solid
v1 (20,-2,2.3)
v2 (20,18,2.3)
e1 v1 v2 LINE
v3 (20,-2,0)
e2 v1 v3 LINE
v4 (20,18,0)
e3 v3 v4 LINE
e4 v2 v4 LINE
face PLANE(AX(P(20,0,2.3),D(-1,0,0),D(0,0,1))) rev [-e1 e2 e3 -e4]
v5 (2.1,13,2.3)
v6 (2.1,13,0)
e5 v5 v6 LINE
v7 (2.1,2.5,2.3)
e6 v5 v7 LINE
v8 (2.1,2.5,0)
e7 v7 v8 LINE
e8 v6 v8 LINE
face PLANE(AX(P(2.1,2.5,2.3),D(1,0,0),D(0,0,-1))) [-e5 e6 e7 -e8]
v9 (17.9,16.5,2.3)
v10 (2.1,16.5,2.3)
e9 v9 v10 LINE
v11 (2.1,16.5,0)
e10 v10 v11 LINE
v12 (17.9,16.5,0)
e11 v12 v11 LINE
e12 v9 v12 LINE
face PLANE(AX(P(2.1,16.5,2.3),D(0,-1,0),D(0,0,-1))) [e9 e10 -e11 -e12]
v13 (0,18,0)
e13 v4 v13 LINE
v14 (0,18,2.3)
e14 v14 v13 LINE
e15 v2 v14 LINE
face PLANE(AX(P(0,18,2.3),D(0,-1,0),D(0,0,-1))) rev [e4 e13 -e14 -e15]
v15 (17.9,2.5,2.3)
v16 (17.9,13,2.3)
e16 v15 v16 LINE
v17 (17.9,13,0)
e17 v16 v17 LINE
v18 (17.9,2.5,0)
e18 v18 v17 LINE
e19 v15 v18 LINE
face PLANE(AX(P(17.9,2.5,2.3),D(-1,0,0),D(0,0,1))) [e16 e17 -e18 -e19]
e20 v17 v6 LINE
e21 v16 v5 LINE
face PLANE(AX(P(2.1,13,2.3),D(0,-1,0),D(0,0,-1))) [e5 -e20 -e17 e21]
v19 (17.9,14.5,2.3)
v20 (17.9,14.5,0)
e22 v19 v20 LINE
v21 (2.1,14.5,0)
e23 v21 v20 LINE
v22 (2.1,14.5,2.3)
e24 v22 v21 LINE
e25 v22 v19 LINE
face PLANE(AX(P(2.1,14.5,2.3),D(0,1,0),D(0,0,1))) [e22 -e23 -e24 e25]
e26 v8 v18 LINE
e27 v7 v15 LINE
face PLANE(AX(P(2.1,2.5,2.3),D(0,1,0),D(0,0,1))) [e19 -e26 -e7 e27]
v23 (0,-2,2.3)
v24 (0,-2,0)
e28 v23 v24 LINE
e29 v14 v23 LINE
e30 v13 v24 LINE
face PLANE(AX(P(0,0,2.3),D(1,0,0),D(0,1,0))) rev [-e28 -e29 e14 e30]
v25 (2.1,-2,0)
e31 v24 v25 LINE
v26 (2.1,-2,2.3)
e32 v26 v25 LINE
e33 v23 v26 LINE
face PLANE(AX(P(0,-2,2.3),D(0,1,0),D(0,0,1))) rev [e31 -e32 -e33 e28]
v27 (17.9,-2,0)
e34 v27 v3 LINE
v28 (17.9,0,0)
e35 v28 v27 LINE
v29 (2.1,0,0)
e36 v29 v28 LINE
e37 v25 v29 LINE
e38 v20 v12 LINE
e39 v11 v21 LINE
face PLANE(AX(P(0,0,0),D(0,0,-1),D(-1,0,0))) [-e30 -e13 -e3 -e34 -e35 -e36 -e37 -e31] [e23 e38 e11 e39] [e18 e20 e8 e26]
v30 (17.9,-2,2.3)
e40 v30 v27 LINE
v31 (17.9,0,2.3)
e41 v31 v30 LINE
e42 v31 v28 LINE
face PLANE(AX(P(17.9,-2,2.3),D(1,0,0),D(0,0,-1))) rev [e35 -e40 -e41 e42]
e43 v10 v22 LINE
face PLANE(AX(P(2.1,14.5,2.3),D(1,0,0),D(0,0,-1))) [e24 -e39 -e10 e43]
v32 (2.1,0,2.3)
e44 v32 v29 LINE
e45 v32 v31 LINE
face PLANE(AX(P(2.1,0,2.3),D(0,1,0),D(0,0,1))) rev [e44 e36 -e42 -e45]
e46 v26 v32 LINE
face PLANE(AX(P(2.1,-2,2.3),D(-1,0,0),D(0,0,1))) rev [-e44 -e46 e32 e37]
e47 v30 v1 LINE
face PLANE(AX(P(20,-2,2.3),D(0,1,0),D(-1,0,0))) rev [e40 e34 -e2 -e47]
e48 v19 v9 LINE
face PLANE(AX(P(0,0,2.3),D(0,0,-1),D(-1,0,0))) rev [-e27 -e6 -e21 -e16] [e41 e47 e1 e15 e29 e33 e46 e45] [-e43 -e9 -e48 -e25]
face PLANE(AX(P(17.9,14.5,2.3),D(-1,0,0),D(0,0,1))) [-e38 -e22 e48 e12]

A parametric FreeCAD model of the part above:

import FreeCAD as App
import Part
import Sketcher
from FreeCAD import Vector

doc = App.newDocument("Part")
body = doc.addObject("PartDesign::Body", "Body")

# Sketch on XY plane
sketch1 = body.newObject("Sketcher::SketchObject", "Sketch")
sketch1.AttachmentSupport = (doc.getObject("XY_Plane"), [""])
sketch1.MapMode = "FlatFace"
sketch1.addGeometry(Part.LineSegment(Vector(0, -2, 0), Vector(2.1, -2, 0)), False)
sketch1.addGeometry(Part.LineSegment(Vector(2.1, -2, 0), Vector(2.1, 0, 0)), False)
sketch1.addGeometry(Part.LineSegment(Vector(2.1, 0, 0), Vector(17.9, 0, 0)), False)
sketch1.addGeometry(Part.LineSegment(Vector(17.9, 0, 0), Vector(17.9, -2, 0)), False)
sketch1.addGeometry(Part.LineSegment(Vector(17.9, -2, 0), Vector(20, -2, 0)), False)
sketch1.addGeometry(Part.LineSegment(Vector(20, -2, 0), Vector(20, 18, 0)), False)
sketch1.addGeometry(Part.LineSegment(Vector(20, 18, 0), Vector(0, 18, 0)), False)
sketch1.addGeometry(Part.LineSegment(Vector(0, 18, 0), Vector(0, -2, 0)), False)
sketch1.addGeometry(Part.LineSegment(Vector(17.9, 2.5, 0), Vector(2.1, 2.5, 0)), False)
sketch1.addGeometry(Part.LineSegment(Vector(2.1, 2.5, 0), Vector(2.1, 13, 0)), False)
sketch1.addGeometry(Part.LineSegment(Vector(2.1, 13, 0), Vector(17.9, 13, 0)), False)
sketch1.addGeometry(Part.LineSegment(Vector(17.9, 13, 0), Vector(17.9, 2.5, 0)), False)
sketch1.addGeometry(Part.LineSegment(Vector(17.9, 14.5, 0), Vector(2.1, 14.5, 0)), False)
sketch1.addGeometry(Part.LineSegment(Vector(2.1, 14.5, 0), Vector(2.1, 16.5, 0)), False)
sketch1.addGeometry(Part.LineSegment(Vector(2.1, 16.5, 0), Vector(17.9, 16.5, 0)), False)
sketch1.addGeometry(Part.LineSegment(Vector(17.9, 16.5, 0), Vector(17.9, 14.5, 0)), False)
sketch1.addConstraint(Sketcher.Constraint("Coincident", 0, 2, 1, 1))
sketch1.addConstraint(Sketcher.Constraint("Coincident", 1, 2, 2, 1))
sketch1.addConstraint(Sketcher.Constraint("Coincident", 2, 2, 3, 1))
sketch1.addConstraint(Sketcher.Constraint("Coincident", 3, 2, 4, 1))
sketch1.addConstraint(Sketcher.Constraint("Coincident", 4, 2, 5, 1))
sketch1.addConstraint(Sketcher.Constraint("Coincident", 5, 2, 6, 1))
sketch1.addConstraint(Sketcher.Constraint("Coincident", 6, 2, 7, 1))
sketch1.addConstraint(Sketcher.Constraint("Coincident", 7, 2, 0, 1))
sketch1.addConstraint(Sketcher.Constraint("Coincident", 8, 2, 9, 1))
sketch1.addConstraint(Sketcher.Constraint("Coincident", 9, 2, 10, 1))
sketch1.addConstraint(Sketcher.Constraint("Coincident", 10, 2, 11, 1))
sketch1.addConstraint(Sketcher.Constraint("Coincident", 11, 2, 8, 1))
sketch1.addConstraint(Sketcher.Constraint("Coincident", 12, 2, 13, 1))
sketch1.addConstraint(Sketcher.Constraint("Coincident", 13, 2, 14, 1))
sketch1.addConstraint(Sketcher.Constraint("Coincident", 14, 2, 15, 1))
sketch1.addConstraint(Sketcher.Constraint("Coincident", 15, 2, 12, 1))
sketch1.addConstraint(Sketcher.Constraint("Horizontal", 0))
sketch1.addConstraint(Sketcher.Constraint("Vertical", 1))
sketch1.addConstraint(Sketcher.Constraint("Horizontal", 2))
sketch1.addConstraint(Sketcher.Constraint("Vertical", 3))
sketch1.addConstraint(Sketcher.Constraint("Horizontal", 4))
sketch1.addConstraint(Sketcher.Constraint("Vertical", 5))
sketch1.addConstraint(Sketcher.Constraint("Horizontal", 6))
sketch1.addConstraint(Sketcher.Constraint("Vertical", 7))
sketch1.addConstraint(Sketcher.Constraint("Horizontal", 8))
sketch1.addConstraint(Sketcher.Constraint("Vertical", 9))
sketch1.addConstraint(Sketcher.Constraint("Horizontal", 10))
sketch1.addConstraint(Sketcher.Constraint("Vertical", 11))
sketch1.addConstraint(Sketcher.Constraint("Horizontal", 12))
sketch1.addConstraint(Sketcher.Constraint("Vertical", 13))
sketch1.addConstraint(Sketcher.Constraint("Horizontal", 14))
sketch1.addConstraint(Sketcher.Constraint("Vertical", 15))
sketch1.addConstraint(Sketcher.Constraint("PointOnObject", 1, 2, -1))
sketch1.addConstraint(Sketcher.Constraint("PointOnObject", 6, 2, -2))
sketch1.addConstraint(Sketcher.Constraint("Horizontal", 0, 2, 3, 2))
sketch1.addConstraint(Sketcher.Constraint("Vertical", 1, 2, 8, 2))
sketch1.addConstraint(Sketcher.Constraint("Vertical", 3, 2, 10, 2))
sketch1.addConstraint(Sketcher.Constraint("Vertical", 9, 2, 12, 2))
sketch1.addConstraint(Sketcher.Constraint("Vertical", 11, 2, 14, 2))
sketch1.addConstraint(Sketcher.Constraint("Equal", 0, 4))
sketch1.addConstraint(Sketcher.Constraint("Equal", 6, 5))
sketch1.addConstraint(Sketcher.Constraint("Equal", 3, 13))
sketch1.addConstraint(Sketcher.Constraint("DistanceX", 6, 2, 6, 1, 20.0))
sketch1.addConstraint(Sketcher.Constraint("DistanceY", 1, 1, 1, 2, 2.0))
sketch1.addConstraint(Sketcher.Constraint("DistanceX", 0, 1, 0, 2, 2.1))
sketch1.addConstraint(Sketcher.Constraint("DistanceY", 9, 1, 9, 2, 10.5))
sketch1.addConstraint(Sketcher.Constraint("DistanceY", -1, 1, 9, 2, 13.0))
sketch1.addConstraint(Sketcher.Constraint("DistanceY", 8, 2, 12, 2, 12.0))
pad1 = body.newObject("PartDesign::Pad", "Pad")
pad1.Profile = sketch1
pad1.Length = 2.3

doc.recompute()
